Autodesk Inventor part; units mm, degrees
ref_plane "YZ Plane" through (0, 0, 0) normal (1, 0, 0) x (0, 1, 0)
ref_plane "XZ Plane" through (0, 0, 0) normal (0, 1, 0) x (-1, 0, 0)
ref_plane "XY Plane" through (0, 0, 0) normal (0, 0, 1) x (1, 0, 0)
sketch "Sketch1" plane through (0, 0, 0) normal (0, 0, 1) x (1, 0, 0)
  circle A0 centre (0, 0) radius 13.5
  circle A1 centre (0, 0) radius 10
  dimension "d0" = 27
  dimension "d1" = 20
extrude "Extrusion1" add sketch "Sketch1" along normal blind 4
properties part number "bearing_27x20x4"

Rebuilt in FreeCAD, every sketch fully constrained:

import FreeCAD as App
import Part
import Sketcher

doc = App.newDocument("Part")
params = doc.addObject("Spreadsheet::Sheet", "Params")
for row, (alias, value) in enumerate([
    ("sketch1_diameter", "27 mm"),
    ("sketch1_diameter2", "20 mm"),
    ("pad1_length", "4 mm"),
], start=1):
    params.set(f"A{row}", alias)
    params.set(f"B{row}", "=" + value)
    params.setAlias(f"B{row}", alias)

body = doc.addObject("PartDesign::Body", "Body")

# Sketch on XY plane
sketch1 = body.newObject("Sketcher::SketchObject", "Sketch")
sketch1.AttachmentSupport = (doc.getObject("XY_Plane"), [""])
sketch1.MapMode = "FlatFace"
sketch1.addGeometry([
    Part.Circle(App.Vector(0, 0, 0), App.Vector(0, 0, 1), 14),
    Part.Circle(App.Vector(0, 0, 0), App.Vector(0, 0, 1), 10),
], False)
sketch1.addConstraint([
    Sketcher.Constraint("Coincident", 0, 3, -1, 1),
    Sketcher.Constraint("Coincident", 1, 3, -1, 1),
    Sketcher.Constraint("Diameter", 0, 27.0),
    Sketcher.Constraint("Diameter", 1, 20.0),
])
sketch1.setExpression("Constraints[2]", "Params.sketch1_diameter")
sketch1.setExpression("Constraints[3]", "Params.sketch1_diameter2")
pad1 = body.newObject("PartDesign::Pad", "Pad")
pad1.Profile = sketch1
pad1.setExpression("Length", "Params.pad1_length")

doc.recompute()
